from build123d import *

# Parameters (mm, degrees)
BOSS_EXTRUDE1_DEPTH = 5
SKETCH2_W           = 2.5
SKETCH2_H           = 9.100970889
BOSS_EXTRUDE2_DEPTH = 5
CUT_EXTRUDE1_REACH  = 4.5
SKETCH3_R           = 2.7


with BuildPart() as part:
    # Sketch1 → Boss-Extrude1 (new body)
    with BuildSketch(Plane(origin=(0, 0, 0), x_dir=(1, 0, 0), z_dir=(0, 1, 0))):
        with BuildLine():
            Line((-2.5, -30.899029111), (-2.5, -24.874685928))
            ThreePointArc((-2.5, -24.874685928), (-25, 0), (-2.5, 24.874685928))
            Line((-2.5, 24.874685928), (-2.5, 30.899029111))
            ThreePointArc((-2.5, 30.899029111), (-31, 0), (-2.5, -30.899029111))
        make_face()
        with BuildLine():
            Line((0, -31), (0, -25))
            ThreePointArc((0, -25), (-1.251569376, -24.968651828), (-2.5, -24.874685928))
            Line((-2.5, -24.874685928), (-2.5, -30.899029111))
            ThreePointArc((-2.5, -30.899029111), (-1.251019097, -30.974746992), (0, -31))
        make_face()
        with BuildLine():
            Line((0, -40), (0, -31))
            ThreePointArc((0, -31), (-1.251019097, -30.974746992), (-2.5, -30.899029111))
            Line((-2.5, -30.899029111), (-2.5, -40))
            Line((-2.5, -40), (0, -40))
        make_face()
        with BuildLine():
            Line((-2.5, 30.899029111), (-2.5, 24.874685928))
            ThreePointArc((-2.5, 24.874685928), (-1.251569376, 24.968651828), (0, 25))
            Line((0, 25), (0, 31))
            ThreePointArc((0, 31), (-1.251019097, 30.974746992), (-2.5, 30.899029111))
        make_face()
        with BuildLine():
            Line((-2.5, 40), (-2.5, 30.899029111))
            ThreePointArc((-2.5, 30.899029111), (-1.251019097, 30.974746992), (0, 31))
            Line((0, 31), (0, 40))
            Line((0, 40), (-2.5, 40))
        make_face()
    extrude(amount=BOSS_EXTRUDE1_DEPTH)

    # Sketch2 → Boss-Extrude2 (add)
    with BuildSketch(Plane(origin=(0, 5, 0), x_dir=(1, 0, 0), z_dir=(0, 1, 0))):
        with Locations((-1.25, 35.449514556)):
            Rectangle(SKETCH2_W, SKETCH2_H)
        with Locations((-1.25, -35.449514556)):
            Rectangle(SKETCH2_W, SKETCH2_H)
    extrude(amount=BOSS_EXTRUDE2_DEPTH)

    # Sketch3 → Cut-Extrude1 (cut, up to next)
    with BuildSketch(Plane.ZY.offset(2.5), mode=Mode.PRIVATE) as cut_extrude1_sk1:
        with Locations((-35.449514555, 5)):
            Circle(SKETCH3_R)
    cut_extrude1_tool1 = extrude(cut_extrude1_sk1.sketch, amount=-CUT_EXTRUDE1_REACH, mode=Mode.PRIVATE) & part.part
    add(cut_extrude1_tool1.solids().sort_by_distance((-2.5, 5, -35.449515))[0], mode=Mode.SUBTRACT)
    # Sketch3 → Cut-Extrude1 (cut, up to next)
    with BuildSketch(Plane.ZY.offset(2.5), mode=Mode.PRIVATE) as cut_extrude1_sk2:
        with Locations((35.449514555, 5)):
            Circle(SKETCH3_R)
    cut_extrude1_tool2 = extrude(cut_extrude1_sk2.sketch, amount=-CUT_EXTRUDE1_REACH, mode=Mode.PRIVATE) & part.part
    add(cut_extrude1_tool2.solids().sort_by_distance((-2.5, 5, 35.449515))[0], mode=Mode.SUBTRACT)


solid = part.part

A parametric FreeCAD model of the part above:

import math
import FreeCAD as App
import Part
import Sketcher
from FreeCAD import Vector
Q = App.Units.Quantity


def add_polygon(sketch, points):
    """Adds a closed chain of lines whose ends are joined by coincident constraints."""
    first, n = sketch.GeometryCount, len(points)
    for a, b in zip(points, points[1:] + points[:1]):
        sketch.addGeometry(Part.LineSegment(App.Vector(*a, 0), App.Vector(*b, 0)), False)
    for i in range(n):
        sketch.addConstraint(Sketcher.Constraint("Coincident", first + i, 2, first + (i + 1) % n, 1))

doc = App.newDocument("Part")
body = doc.addObject("PartDesign::Body", "Body")

# Sketch on XZ plane
sketch1 = body.newObject("Sketcher::SketchObject", "Sketch")
sketch1.AttachmentSupport = (doc.getObject("XZ_Plane"), [""])
sketch1.MapMode = "FlatFace"
sketch1.addGeometry([
    Part.ArcOfCircle(Part.Circle(Vector(0, 0, 0), Vector(0, 0, 1), 25), math.radians(96), math.radians(264)),  # 0
    Part.ArcOfCircle(Part.Circle(Vector(0, 0, 0), Vector(0, 0, 1), 25), math.radians(-95.74), math.radians(-90)),  # 1
    Part.LineSegment(Vector(0, -25, 0), Vector(0, -40, 0)),  # 2
    Part.LineSegment(Vector(0, -40, 0), Vector(-2.5, -40, 0)),  # 3
    Part.LineSegment(Vector(-2.5, -40, 0), Vector(-2.5, -30.9, 0)),  # 4
    Part.ArcOfCircle(Part.Circle(Vector(0, 0, 0), Vector(0, 0, 1), 31), math.radians(95), math.radians(265)),  # 5
    Part.LineSegment(Vector(-2.5, 30.9, 0), Vector(-2.5, 40, 0)),  # 6
    Part.LineSegment(Vector(-2.5, 40, 0), Vector(0, 40, 0)),  # 7
    Part.LineSegment(Vector(0, 40, 0), Vector(0, 25, 0)),  # 8
    Part.ArcOfCircle(Part.Circle(Vector(0, 0, 0), Vector(0, 0, 1), 25), math.radians(90), math.radians(95.74)),  # 9
], False)
sketch1.addConstraint([
    Sketcher.Constraint("Tangent", 0, 2, 1, 1),
    Sketcher.Constraint("Coincident", 1, 2, 2, 1),
    Sketcher.Constraint("Coincident", 2, 2, 3, 1),
    Sketcher.Constraint("Coincident", 3, 2, 4, 1),
    Sketcher.Constraint("Coincident", 4, 2, 5, 2),
    Sketcher.Constraint("Coincident", 5, 1, 6, 1),
    Sketcher.Constraint("Coincident", 6, 2, 7, 1),
    Sketcher.Constraint("Coincident", 7, 2, 8, 1),
    Sketcher.Constraint("Coincident", 8, 2, 9, 1),
    Sketcher.Constraint("Tangent", 9, 2, 0, 1),
    Sketcher.Constraint("Vertical", 2),
    Sketcher.Constraint("Horizontal", 3),
    Sketcher.Constraint("Vertical", 4),
    Sketcher.Constraint("Vertical", 6),
    Sketcher.Constraint("Horizontal", 7),
    Sketcher.Constraint("Vertical", 8),
    Sketcher.Constraint("Coincident", 0, 3, -1, 1),
    Sketcher.Constraint("Coincident", 5, 3, -1, 1),
    Sketcher.Constraint("Equal", 0, 1),
    Sketcher.Constraint("Equal", 1, 9),
    Sketcher.Constraint("Symmetric", 2, 2, 7, 2, -1, 1),
    Sketcher.Constraint("PointOnObject", 1, 2, -2),
    Sketcher.Constraint("Vertical", 0, 2, 3, 2),
    Sketcher.Constraint("Vertical", 4, 2, 5, 1),
    Sketcher.Constraint("Vertical", 6, 2, 9, 2),
    Sketcher.Constraint("Radius", 0, Q("25 mm")),
    Sketcher.Constraint("Radius", 5, Q("31 mm")),
    Sketcher.Constraint("DistanceY", 2, 2, 2, 1, Q("15 mm")),
    Sketcher.Constraint("DistanceX", 3, 2, 3, 1, Q("2.5 mm")),
])
pad1 = body.newObject("PartDesign::Pad", "Pad")
pad1.Profile = sketch1
pad1.Length = 5
pad1.Reversed = True

# Sketch on XZ plane
sketch2 = body.newObject("Sketcher::SketchObject", "Sketch001")
sketch2.AttachmentSupport = (doc.getObject("XZ_Plane"), [""])
sketch2.MapMode = "FlatFace"
sketch2.AttachmentOffset = App.Placement(Vector(0, 0, -5), App.Rotation())
add_polygon(sketch2, [(-2.5, -40), (-2.5, -30.9), (0, -30.9), (0, -40)])  # lines 0-3
add_polygon(sketch2, [(-2.5, 30.9), (-2.5, 40), (0, 40), (0, 30.9)])  # lines 4-7
sketch2.addConstraint([
    Sketcher.Constraint("Vertical", 0),
    Sketcher.Constraint("Horizontal", 1),
    Sketcher.Constraint("Vertical", 2),
    Sketcher.Constraint("Horizontal", 3),
    Sketcher.Constraint("Vertical", 4),
    Sketcher.Constraint("Horizontal", 5),
    Sketcher.Constraint("Vertical", 6),
    Sketcher.Constraint("Horizontal", 7),
    Sketcher.Constraint("Symmetric", 2, 2, 5, 2, -1, 1),
    Sketcher.Constraint("Symmetric", 1, 2, 6, 2, -1),
    Sketcher.Constraint("Vertical", 3, 2, 4, 2),
    Sketcher.Constraint("DistanceX", 1, 1, 1, 2, Q("2.5 mm")),
    Sketcher.Constraint("DistanceY", 2, 2, -1, 1, Q("40 mm")),
    Sketcher.Constraint("DistanceY", 0, 1, 0, 2, Q("9.100971 mm")),
])
pad2 = body.newObject("PartDesign::Pad", "Pad001")
pad2.Profile = sketch2
pad2.Length = 5
pad2.Reversed = True

# Sketch on YZ plane
sketch3 = body.newObject("Sketcher::SketchObject", "Sketch002")
sketch3.AttachmentSupport = (doc.getObject("YZ_Plane"), [""])
sketch3.MapMode = "FlatFace"
sketch3.AttachmentOffset = App.Placement(Vector(0, 0, -2.5), App.Rotation())
sketch3.addGeometry(Part.Circle(Vector(5, -35.4, 0), Vector(0, 0, 1), 2.7), False)
sketch3.addConstraint([
    Sketcher.Constraint("Diameter", 0, Q("5.4 mm")),
    Sketcher.Constraint("DistanceX", -1, 1, 0, 3, Q("5 mm")),
    Sketcher.Constraint("DistanceY", 0, 3, -1, 1, Q("35.449515 mm")),
])
pocket1 = body.newObject("PartDesign::Pocket", "Pocket")
pocket1.Profile = sketch3
pocket1.Type = "UpToFirst"
pocket1.Reversed = True

# Sketch on YZ plane
sketch4 = body.newObject("Sketcher::SketchObject", "Sketch003")
sketch4.AttachmentSupport = (doc.getObject("YZ_Plane"), [""])
sketch4.MapMode = "FlatFace"
sketch4.AttachmentOffset = App.Placement(Vector(0, 0, -2.5), App.Rotation())
sketch4.addGeometry(Part.Circle(Vector(5, 35.4, 0), Vector(0, 0, 1), 2.7), False)
sketch4.addConstraint([
    Sketcher.Constraint("Diameter", 0, Q("5.4 mm")),
    Sketcher.Constraint("DistanceX", -1, 1, 0, 3, Q("5 mm")),
    Sketcher.Constraint("DistanceY", -1, 1, 0, 3, Q("35.449515 mm")),
])
pocket2 = body.newObject("PartDesign::Pocket", "Pocket001")
pocket2.Profile = sketch4
pocket2.Type = "UpToFirst"
pocket2.Reversed = True

doc.recompute()
